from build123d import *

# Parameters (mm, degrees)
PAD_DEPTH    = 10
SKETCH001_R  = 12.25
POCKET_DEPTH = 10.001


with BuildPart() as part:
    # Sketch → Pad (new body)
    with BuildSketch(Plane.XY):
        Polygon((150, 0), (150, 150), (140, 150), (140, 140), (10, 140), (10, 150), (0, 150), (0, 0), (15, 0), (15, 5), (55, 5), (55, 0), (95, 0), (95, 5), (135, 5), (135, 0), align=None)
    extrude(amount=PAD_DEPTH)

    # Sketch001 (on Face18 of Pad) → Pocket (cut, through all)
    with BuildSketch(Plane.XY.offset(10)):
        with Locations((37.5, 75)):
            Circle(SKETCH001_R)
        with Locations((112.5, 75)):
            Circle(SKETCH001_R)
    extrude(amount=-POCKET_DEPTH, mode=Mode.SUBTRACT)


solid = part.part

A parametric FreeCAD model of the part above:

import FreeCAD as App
import Part
import Sketcher
from FreeCAD import Vector


def add_polygon(sketch, points):
    """Adds a closed chain of lines whose ends are joined by coincident constraints."""
    first, n = sketch.GeometryCount, len(points)
    for a, b in zip(points, points[1:] + points[:1]):
        sketch.addGeometry(Part.LineSegment(App.Vector(*a, 0), App.Vector(*b, 0)), False)
    for i in range(n):
        sketch.addConstraint(Sketcher.Constraint("Coincident", first + i, 2, first + (i + 1) % n, 1))

doc = App.newDocument("Part")
body = doc.addObject("PartDesign::Body", "Body")

# Sketch on XY plane
sketch1 = body.newObject("Sketcher::SketchObject", "Sketch")
sketch1.AttachmentSupport = (doc.getObject("XY_Plane"), [""])
sketch1.MapMode = "FlatFace"
add_polygon(sketch1, [(150, 0), (150, 150), (140, 150), (140, 140), (10, 140), (10, 150), (0, 150), (0, 0), (15, 0), (15, 5), (55, 5), (55, 0), (95, 0), (95, 5), (135, 5), (135, 0)])  # lines 0-15
sketch1.addConstraint([
    Sketcher.Constraint("Vertical", 0),
    Sketcher.Constraint("Horizontal", 1),
    Sketcher.Constraint("Vertical", 2),
    Sketcher.Constraint("Horizontal", 3),
    Sketcher.Constraint("Vertical", 4),
    Sketcher.Constraint("Horizontal", 5),
    Sketcher.Constraint("Vertical", 6),
    Sketcher.Constraint("Horizontal", 7),
    Sketcher.Constraint("Vertical", 8),
    Sketcher.Constraint("Horizontal", 9),
    Sketcher.Constraint("Vertical", 10),
    Sketcher.Constraint("Horizontal", 11),
    Sketcher.Constraint("Vertical", 12),
    Sketcher.Constraint("Horizontal", 13),
    Sketcher.Constraint("Vertical", 14),
    Sketcher.Constraint("Horizontal", 15),
    Sketcher.Constraint("Coincident", 6, 2, -1, 1),
    Sketcher.Constraint("PointOnObject", 10, 2, -1),
    Sketcher.Constraint("PointOnObject", 14, 2, -1),
    Sketcher.Constraint("Horizontal", 1, 2, 4, 2),
    Sketcher.Constraint("Horizontal", 9, 2, 12, 2),
    Sketcher.Constraint("Equal", 1, 5),
    Sketcher.Constraint("Equal", 9, 11),
    Sketcher.Constraint("Equal", 11, 13),
    Sketcher.Constraint("Equal", 7, 15),
    Sketcher.Constraint("Equal", 5, 2),
    Sketcher.Constraint("DistanceX", 1, 2, 1, 1, 10.0),
    Sketcher.Constraint("DistanceX", 3, 2, 3, 1, 130.0),
    Sketcher.Constraint("DistanceX", 7, 1, 7, 2, 15.0),
    Sketcher.Constraint("DistanceY", 0, 1, 0, 2, 150.0),
    Sketcher.Constraint("DistanceY", 8, 1, 8, 2, 5.0),
])
pad1 = body.newObject("PartDesign::Pad", "Pad")
pad1.Profile = sketch1
pad1.Length = 10

# Sketch on XY plane
sketch2 = body.newObject("Sketcher::SketchObject", "Sketch001")
sketch2.AttachmentSupport = (doc.getObject("XY_Plane"), [""])
sketch2.MapMode = "FlatFace"
sketch2.AttachmentOffset = App.Placement(Vector(0, 0, 10), App.Rotation())
sketch2.addGeometry([
    Part.Circle(Vector(38, 75, 0), Vector(0, 0, 1), 12),
    Part.Circle(Vector(112, 75, 0), Vector(0, 0, 1), 12),
], False)
sketch2.addConstraint([
    Sketcher.Constraint("Equal", 0, 1),
    Sketcher.Constraint("Horizontal", 0, 3, 1, 3),
    Sketcher.Constraint("Diameter", 0, 24.5),
    Sketcher.Constraint("DistanceY", -1, 1, 0, 3, 75.0),
    Sketcher.Constraint("DistanceX", 0, 3, 1, 3, 75.0),
    Sketcher.Constraint("DistanceX", -1, 1, 0, 3, 37.5),
])
pocket1 = body.newObject("PartDesign::Pocket", "Pocket")
pocket1.Profile = sketch2
pocket1.Type = "ThroughAll"

doc.recompute()
